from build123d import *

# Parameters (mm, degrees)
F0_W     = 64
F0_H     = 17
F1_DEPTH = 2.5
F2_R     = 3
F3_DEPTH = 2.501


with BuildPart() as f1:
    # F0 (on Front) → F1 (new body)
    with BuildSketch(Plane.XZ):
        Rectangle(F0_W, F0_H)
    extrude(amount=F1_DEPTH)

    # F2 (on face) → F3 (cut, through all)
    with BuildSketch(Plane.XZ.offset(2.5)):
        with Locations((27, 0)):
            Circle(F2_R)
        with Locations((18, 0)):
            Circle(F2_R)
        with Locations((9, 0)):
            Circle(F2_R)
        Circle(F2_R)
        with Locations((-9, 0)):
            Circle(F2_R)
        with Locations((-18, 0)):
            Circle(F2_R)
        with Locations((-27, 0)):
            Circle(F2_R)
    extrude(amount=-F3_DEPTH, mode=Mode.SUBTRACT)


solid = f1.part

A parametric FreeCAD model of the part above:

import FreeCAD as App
import Part
import Sketcher

V = App.Vector
Q = App.Units.Quantity


def add_polygon(sketch, points):
    """Adds a closed chain of lines whose ends are joined by coincident constraints."""
    first, n = sketch.GeometryCount, len(points)
    for a, b in zip(points, points[1:] + points[:1]):
        sketch.addGeometry(Part.LineSegment(App.Vector(*a, 0), App.Vector(*b, 0)), False)
    for i in range(n):
        sketch.addConstraint(Sketcher.Constraint("Coincident", first + i, 2, first + (i + 1) % n, 1))

doc = App.newDocument("Part")
body = doc.addObject("PartDesign::Body", "Body")

# Sketch on XZ plane
sketch1 = body.newObject("Sketcher::SketchObject", "Sketch")
sketch1.AttachmentSupport = (doc.getObject("XZ_Plane"), [""])
sketch1.MapMode = "FlatFace"
add_polygon(sketch1, [(-32, 8.5), (-32, -8.5), (32, -8.5), (32, 8.5)])  # lines 0-3
sketch1.addConstraint([
    Sketcher.Constraint("Vertical", 0),
    Sketcher.Constraint("Horizontal", 1),
    Sketcher.Constraint("Vertical", 2),
    Sketcher.Constraint("Horizontal", 3),
    Sketcher.Constraint("Symmetric", 0, 2, 2, 2, -1, 1),
    Sketcher.Constraint("DistanceX", 1, 1, 1, 2, Q("64 mm")),
    Sketcher.Constraint("DistanceY", 0, 2, 0, 1, Q("17 mm")),
])
pad1 = body.newObject("PartDesign::Pad", "Pad")
pad1.Profile = sketch1
pad1.Length = 2.5

# Sketch on XZ plane
sketch2 = body.newObject("Sketcher::SketchObject", "Sketch001")
sketch2.AttachmentSupport = (doc.getObject("XZ_Plane"), [""])
sketch2.MapMode = "FlatFace"
sketch2.AttachmentOffset = App.Placement(V(0, 0, 2.5), App.Rotation())
sketch2.addGeometry([
    Part.Circle(V(27, 0, 0), V(0, 0, 1), 3),  # 0
    Part.Circle(V(18, 0, 0), V(0, 0, 1), 3),  # 1
    Part.Circle(V(9, 0, 0), V(0, 0, 1), 3),  # 2
    Part.Circle(V(0, 0, 0), V(0, 0, 1), 3),  # 3
    Part.Circle(V(-9, 0, 0), V(0, 0, 1), 3),  # 4
    Part.Circle(V(-18, 0, 0), V(0, 0, 1), 3),  # 5
    Part.Circle(V(-27, 0, 0), V(0, 0, 1), 3),  # 6
], False)
sketch2.addConstraint([
    Sketcher.Constraint("Coincident", 3, 3, -1, 1),
    Sketcher.Constraint("Equal", 0, 1),
    Sketcher.Constraint("Equal", 1, 2),
    Sketcher.Constraint("Equal", 2, 3),
    Sketcher.Constraint("Equal", 3, 4),
    Sketcher.Constraint("Equal", 4, 5),
    Sketcher.Constraint("Equal", 5, 6),
    Sketcher.Constraint("Symmetric", 2, 3, 4, 3, -1, 1),
    Sketcher.Constraint("Symmetric", 1, 3, 5, 3, -1, 1),
    Sketcher.Constraint("Symmetric", 0, 3, 6, 3, -1, 1),
    Sketcher.Constraint("PointOnObject", 0, 3, -1),
    Sketcher.Constraint("PointOnObject", 1, 3, -1),
    Sketcher.Constraint("PointOnObject", 2, 3, -1),
    Sketcher.Constraint("Diameter", 0, Q("6 mm")),
    Sketcher.Constraint("DistanceX", -1, 1, 0, 3, Q("27 mm")),
    Sketcher.Constraint("DistanceX", -1, 1, 1, 3, Q("18 mm")),
    Sketcher.Constraint("DistanceX", -1, 1, 2, 3, Q("9 mm")),
])
pocket1 = body.newObject("PartDesign::Pocket", "Pocket")
pocket1.Profile = sketch2
pocket1.Type = "ThroughAll"

doc.recompute()
